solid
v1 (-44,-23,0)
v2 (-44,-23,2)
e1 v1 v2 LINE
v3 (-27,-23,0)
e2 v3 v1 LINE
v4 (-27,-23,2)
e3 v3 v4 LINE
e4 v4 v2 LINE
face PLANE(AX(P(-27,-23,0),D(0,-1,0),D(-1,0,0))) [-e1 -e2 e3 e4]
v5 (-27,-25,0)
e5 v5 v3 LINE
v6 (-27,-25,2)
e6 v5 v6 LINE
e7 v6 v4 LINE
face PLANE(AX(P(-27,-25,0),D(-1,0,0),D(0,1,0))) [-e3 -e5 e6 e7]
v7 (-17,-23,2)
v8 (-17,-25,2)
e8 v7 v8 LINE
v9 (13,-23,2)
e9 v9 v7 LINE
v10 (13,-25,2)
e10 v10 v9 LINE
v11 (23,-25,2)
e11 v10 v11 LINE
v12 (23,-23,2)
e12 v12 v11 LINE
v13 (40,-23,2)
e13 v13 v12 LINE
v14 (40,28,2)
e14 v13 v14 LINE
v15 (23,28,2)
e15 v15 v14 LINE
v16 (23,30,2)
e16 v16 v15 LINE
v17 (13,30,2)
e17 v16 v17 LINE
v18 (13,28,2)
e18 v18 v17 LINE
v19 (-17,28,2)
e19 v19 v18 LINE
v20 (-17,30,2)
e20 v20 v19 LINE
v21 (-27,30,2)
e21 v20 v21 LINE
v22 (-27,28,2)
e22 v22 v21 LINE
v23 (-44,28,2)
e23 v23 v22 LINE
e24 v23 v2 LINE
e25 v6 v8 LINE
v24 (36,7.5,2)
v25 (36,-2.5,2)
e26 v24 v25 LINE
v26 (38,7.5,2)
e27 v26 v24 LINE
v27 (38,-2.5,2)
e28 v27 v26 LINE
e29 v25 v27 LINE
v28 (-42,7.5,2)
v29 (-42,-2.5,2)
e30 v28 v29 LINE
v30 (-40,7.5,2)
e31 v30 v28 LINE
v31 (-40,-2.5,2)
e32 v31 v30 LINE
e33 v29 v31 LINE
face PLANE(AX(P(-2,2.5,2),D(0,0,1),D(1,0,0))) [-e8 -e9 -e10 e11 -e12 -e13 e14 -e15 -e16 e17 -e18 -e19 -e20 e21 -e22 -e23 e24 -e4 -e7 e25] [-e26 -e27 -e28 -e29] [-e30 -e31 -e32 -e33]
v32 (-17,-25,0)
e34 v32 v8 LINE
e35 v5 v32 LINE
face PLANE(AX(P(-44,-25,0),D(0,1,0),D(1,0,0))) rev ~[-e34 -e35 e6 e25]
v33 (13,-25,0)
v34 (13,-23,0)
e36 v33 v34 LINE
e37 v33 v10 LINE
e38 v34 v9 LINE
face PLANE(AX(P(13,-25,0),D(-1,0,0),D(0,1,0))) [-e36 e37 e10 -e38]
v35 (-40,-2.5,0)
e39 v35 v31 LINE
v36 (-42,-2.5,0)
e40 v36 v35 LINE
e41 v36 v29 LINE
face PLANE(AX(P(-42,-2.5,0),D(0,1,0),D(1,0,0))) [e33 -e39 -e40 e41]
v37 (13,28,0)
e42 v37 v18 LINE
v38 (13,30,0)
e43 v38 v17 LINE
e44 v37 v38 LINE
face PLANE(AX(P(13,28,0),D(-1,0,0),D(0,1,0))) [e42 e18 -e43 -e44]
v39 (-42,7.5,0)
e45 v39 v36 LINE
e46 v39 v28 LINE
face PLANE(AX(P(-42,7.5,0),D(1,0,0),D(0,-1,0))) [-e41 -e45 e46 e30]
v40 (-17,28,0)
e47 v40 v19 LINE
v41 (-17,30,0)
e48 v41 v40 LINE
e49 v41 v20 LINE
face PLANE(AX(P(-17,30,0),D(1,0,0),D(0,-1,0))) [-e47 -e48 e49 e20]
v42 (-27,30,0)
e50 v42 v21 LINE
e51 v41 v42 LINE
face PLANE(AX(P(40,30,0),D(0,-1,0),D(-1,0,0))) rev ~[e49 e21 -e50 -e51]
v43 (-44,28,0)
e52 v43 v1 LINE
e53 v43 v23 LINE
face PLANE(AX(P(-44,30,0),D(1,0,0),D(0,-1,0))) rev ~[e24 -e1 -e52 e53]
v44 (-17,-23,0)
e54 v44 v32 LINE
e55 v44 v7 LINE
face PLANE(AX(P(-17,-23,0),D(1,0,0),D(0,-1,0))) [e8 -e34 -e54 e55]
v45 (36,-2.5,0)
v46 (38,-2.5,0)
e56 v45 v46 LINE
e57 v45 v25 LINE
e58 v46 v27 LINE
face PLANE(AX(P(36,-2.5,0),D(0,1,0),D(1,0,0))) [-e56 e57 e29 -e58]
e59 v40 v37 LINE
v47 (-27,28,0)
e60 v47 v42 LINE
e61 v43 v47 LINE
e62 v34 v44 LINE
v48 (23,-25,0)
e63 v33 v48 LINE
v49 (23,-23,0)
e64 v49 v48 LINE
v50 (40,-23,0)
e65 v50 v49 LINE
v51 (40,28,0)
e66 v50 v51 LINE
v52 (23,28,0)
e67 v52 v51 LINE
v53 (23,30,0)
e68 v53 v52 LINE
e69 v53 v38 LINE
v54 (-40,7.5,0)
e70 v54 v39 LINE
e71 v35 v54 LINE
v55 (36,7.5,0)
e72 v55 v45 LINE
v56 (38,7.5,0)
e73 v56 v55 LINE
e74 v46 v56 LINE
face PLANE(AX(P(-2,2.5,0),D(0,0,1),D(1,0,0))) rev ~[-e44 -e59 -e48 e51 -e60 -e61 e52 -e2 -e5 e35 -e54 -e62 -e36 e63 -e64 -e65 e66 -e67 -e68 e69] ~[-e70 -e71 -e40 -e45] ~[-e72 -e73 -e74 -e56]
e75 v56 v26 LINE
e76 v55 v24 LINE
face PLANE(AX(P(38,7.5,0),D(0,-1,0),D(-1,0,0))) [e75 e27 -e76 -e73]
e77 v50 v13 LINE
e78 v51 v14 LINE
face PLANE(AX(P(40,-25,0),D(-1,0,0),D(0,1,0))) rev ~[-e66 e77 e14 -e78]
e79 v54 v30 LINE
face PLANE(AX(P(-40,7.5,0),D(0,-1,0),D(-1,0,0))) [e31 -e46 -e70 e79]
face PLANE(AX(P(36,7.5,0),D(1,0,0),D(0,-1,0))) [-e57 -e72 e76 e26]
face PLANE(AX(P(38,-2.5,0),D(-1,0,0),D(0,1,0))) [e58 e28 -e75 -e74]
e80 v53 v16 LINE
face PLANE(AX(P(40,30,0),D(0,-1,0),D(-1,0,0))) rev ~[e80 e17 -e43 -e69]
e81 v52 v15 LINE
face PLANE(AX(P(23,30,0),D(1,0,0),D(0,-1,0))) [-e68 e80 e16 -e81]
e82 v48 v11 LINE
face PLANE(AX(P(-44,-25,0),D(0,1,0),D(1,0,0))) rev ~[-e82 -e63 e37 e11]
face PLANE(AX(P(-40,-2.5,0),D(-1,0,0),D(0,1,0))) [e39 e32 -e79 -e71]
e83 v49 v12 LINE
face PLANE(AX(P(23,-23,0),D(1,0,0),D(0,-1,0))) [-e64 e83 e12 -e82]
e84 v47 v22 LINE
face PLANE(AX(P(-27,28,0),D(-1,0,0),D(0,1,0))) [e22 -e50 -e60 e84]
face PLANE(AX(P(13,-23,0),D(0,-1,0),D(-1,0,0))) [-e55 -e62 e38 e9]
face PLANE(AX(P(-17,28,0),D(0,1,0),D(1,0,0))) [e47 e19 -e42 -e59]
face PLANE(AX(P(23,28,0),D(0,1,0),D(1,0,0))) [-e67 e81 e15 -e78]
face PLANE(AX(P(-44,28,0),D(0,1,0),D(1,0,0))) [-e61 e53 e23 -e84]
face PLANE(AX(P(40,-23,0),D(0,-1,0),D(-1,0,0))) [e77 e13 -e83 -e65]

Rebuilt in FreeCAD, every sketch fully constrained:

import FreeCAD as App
import Part
import Sketcher
Q = App.Units.Quantity

doc = App.newDocument("Part")
body = doc.addObject("PartDesign::Body", "Body")

sketch1 = body.newObject("Sketcher::SketchObject", "Sketch")
sketch1.AttachmentSupport = (doc.getObject("XY_Plane"), [""])
sketch1.MapMode = "FlatFace"
sketch1.addGeometry(Part.LineSegment(App.Vector(-44, -25, 0), App.Vector(40, -25, 0)), False)
sketch1.addGeometry(Part.LineSegment(App.Vector(40, -25, 0), App.Vector(40, 30, 0)), False)
sketch1.addGeometry(Part.LineSegment(App.Vector(40, 30, 0), App.Vector(-44, 30, 0)), False)
sketch1.addGeometry(Part.LineSegment(App.Vector(-44, 30, 0), App.Vector(-44, -25, 0)), False)
sketch1.addConstraint(Sketcher.Constraint("Coincident", 0, 2, 1, 1))
sketch1.addConstraint(Sketcher.Constraint("Coincident", 1, 2, 2, 1))
sketch1.addConstraint(Sketcher.Constraint("Coincident", 2, 2, 3, 1))
sketch1.addConstraint(Sketcher.Constraint("Coincident", 3, 2, 0, 1))
sketch1.addConstraint(Sketcher.Constraint("Horizontal", 0))
sketch1.addConstraint(Sketcher.Constraint("Vertical", 1))
sketch1.addConstraint(Sketcher.Constraint("Horizontal", 2))
sketch1.addConstraint(Sketcher.Constraint("Vertical", 3))
sketch1.addConstraint(Sketcher.Constraint("DistanceX", 0, 1, 0, 2, Q("84 mm")))
sketch1.addConstraint(Sketcher.Constraint("DistanceY", 1, 1, 1, 2, Q("55 mm")))
sketch1.addConstraint(Sketcher.Constraint("DistanceX", -1, 1, 0, 2, Q("40 mm")))
sketch1.addConstraint(Sketcher.Constraint("DistanceY", 0, 2, -1, 1, Q("25 mm")))
pad1 = body.newObject("PartDesign::Pad", "Pad")
pad1.Profile = sketch1
pad1.Length = 2

sketch2 = body.newObject("Sketcher::SketchObject", "Sketch001")
sketch2.AttachmentSupport = (doc.getObject("XY_Plane"), [""])
sketch2.MapMode = "FlatFace"
sketch2.addGeometry(Part.LineSegment(App.Vector(-44, 30, 0), App.Vector(-44, 28, 0)), False)
sketch2.addGeometry(Part.LineSegment(App.Vector(-44, 28, 0), App.Vector(-27, 28, 0)), False)
sketch2.addGeometry(Part.LineSegment(App.Vector(-27, 28, 0), App.Vector(-27, 30, 0)), False)
sketch2.addGeometry(Part.LineSegment(App.Vector(-27, 30, 0), App.Vector(-44, 30, 0)), False)
sketch2.addConstraint(Sketcher.Constraint("Coincident", 0, 2, 1, 1))
sketch2.addConstraint(Sketcher.Constraint("Coincident", 1, 2, 2, 1))
sketch2.addConstraint(Sketcher.Constraint("Coincident", 2, 2, 3, 1))
sketch2.addConstraint(Sketcher.Constraint("Coincident", 3, 2, 0, 1))
sketch2.addConstraint(Sketcher.Constraint("Vertical", 0))
sketch2.addConstraint(Sketcher.Constraint("Horizontal", 1))
sketch2.addConstraint(Sketcher.Constraint("Vertical", 2))
sketch2.addConstraint(Sketcher.Constraint("Horizontal", 3))
sketch2.addConstraint(Sketcher.Constraint("DistanceX", 1, 1, 1, 2, Q("17 mm")))
sketch2.addConstraint(Sketcher.Constraint("DistanceY", 0, 2, 0, 1, Q("2 mm")))
sketch2.addConstraint(Sketcher.Constraint("DistanceX", 0, 2, -1, 1, Q("44 mm")))
sketch2.addConstraint(Sketcher.Constraint("DistanceY", -1, 1, 0, 2, Q("28 mm")))
pocket1 = body.newObject("PartDesign::Pocket", "Pocket")
pocket1.Profile = sketch2
pocket1.Length = 2
pocket1.Reversed = True

sketch3 = body.newObject("Sketcher::SketchObject", "Sketch002")
sketch3.AttachmentSupport = (doc.getObject("XY_Plane"), [""])
sketch3.MapMode = "FlatFace"
sketch3.addGeometry(Part.LineSegment(App.Vector(-17, 30, 0), App.Vector(-17, 28, 0)), False)
sketch3.addGeometry(Part.LineSegment(App.Vector(-17, 28, 0), App.Vector(13, 28, 0)), False)
sketch3.addGeometry(Part.LineSegment(App.Vector(13, 28, 0), App.Vector(13, 30, 0)), False)
sketch3.addGeometry(Part.LineSegment(App.Vector(13, 30, 0), App.Vector(-17, 30, 0)), False)
sketch3.addConstraint(Sketcher.Constraint("Coincident", 0, 2, 1, 1))
sketch3.addConstraint(Sketcher.Constraint("Coincident", 1, 2, 2, 1))
sketch3.addConstraint(Sketcher.Constraint("Coincident", 2, 2, 3, 1))
sketch3.addConstraint(Sketcher.Constraint("Coincident", 3, 2, 0, 1))
sketch3.addConstraint(Sketcher.Constraint("Vertical", 0))
sketch3.addConstraint(Sketcher.Constraint("Horizontal", 1))
sketch3.addConstraint(Sketcher.Constraint("Vertical", 2))
sketch3.addConstraint(Sketcher.Constraint("Horizontal", 3))
sketch3.addConstraint(Sketcher.Constraint("DistanceX", 1, 1, 1, 2, Q("30 mm")))
sketch3.addConstraint(Sketcher.Constraint("DistanceY", 0, 2, 0, 1, Q("2 mm")))
sketch3.addConstraint(Sketcher.Constraint("DistanceX", 0, 2, -1, 1, Q("17 mm")))
sketch3.addConstraint(Sketcher.Constraint("DistanceY", -1, 1, 0, 2, Q("28 mm")))
pocket2 = body.newObject("PartDesign::Pocket", "Pocket001")
pocket2.Profile = sketch3
pocket2.Length = 2
pocket2.Reversed = True

sketch4 = body.newObject("Sketcher::SketchObject", "Sketch003")
sketch4.AttachmentSupport = (doc.getObject("XY_Plane"), [""])
sketch4.MapMode = "FlatFace"
sketch4.addGeometry(Part.LineSegment(App.Vector(23, 30, 0), App.Vector(23, 28, 0)), False)
sketch4.addGeometry(Part.LineSegment(App.Vector(23, 28, 0), App.Vector(40, 28, 0)), False)
sketch4.addGeometry(Part.LineSegment(App.Vector(40, 28, 0), App.Vector(40, 30, 0)), False)
sketch4.addGeometry(Part.LineSegment(App.Vector(40, 30, 0), App.Vector(23, 30, 0)), False)
sketch4.addConstraint(Sketcher.Constraint("Coincident", 0, 2, 1, 1))
sketch4.addConstraint(Sketcher.Constraint("Coincident", 1, 2, 2, 1))
sketch4.addConstraint(Sketcher.Constraint("Coincident", 2, 2, 3, 1))
sketch4.addConstraint(Sketcher.Constraint("Coincident", 3, 2, 0, 1))
sketch4.addConstraint(Sketcher.Constraint("Vertical", 0))
sketch4.addConstraint(Sketcher.Constraint("Horizontal", 1))
sketch4.addConstraint(Sketcher.Constraint("Vertical", 2))
sketch4.addConstraint(Sketcher.Constraint("Horizontal", 3))
sketch4.addConstraint(Sketcher.Constraint("DistanceX", 1, 1, 1, 2, Q("17 mm")))
sketch4.addConstraint(Sketcher.Constraint("DistanceY", 0, 2, 0, 1, Q("2 mm")))
sketch4.addConstraint(Sketcher.Constraint("DistanceX", -1, 1, 0, 2, Q("23 mm")))
sketch4.addConstraint(Sketcher.Constraint("DistanceY", -1, 1, 0, 2, Q("28 mm")))
pocket3 = body.newObject("PartDesign::Pocket", "Pocket002")
pocket3.Profile = sketch4
pocket3.Length = 2
pocket3.Reversed = True

sketch5 = body.newObject("Sketcher::SketchObject", "Sketch004")
sketch5.AttachmentSupport = (doc.getObject("XY_Plane"), [""])
sketch5.MapMode = "FlatFace"
sketch5.addGeometry(Part.LineSegment(App.Vector(36, -2.5, 0), App.Vector(38, -2.5, 0)), False)
sketch5.addGeometry(Part.LineSegment(App.Vector(38, -2.5, 0), App.Vector(38, 7.5, 0)), False)
sketch5.addGeometry(Part.LineSegment(App.Vector(38, 7.5, 0), App.Vector(36, 7.5, 0)), False)
sketch5.addGeometry(Part.LineSegment(App.Vector(36, 7.5, 0), App.Vector(36, -2.5, 0)), False)
sketch5.addConstraint(Sketcher.Constraint("Coincident", 0, 2, 1, 1))
sketch5.addConstraint(Sketcher.Constraint("Coincident", 1, 2, 2, 1))
sketch5.addConstraint(Sketcher.Constraint("Coincident", 2, 2, 3, 1))
sketch5.addConstraint(Sketcher.Constraint("Coincident", 3, 2, 0, 1))
sketch5.addConstraint(Sketcher.Constraint("Horizontal", 0))
sketch5.addConstraint(Sketcher.Constraint("Vertical", 1))
sketch5.addConstraint(Sketcher.Constraint("Horizontal", 2))
sketch5.addConstraint(Sketcher.Constraint("Vertical", 3))
sketch5.addConstraint(Sketcher.Constraint("DistanceX", 0, 1, 0, 2, Q("2 mm")))
sketch5.addConstraint(Sketcher.Constraint("DistanceY", 1, 1, 1, 2, Q("10 mm")))
sketch5.addConstraint(Sketcher.Constraint("DistanceX", -1, 1, 0, 2, Q("38 mm")))
sketch5.addConstraint(Sketcher.Constraint("DistanceY", 0, 2, -1, 1, Q("2.5 mm")))
pocket4 = body.newObject("PartDesign::Pocket", "Pocket003")
pocket4.Profile = sketch5
pocket4.Length = 2
pocket4.Reversed = True

sketch6 = body.newObject("Sketcher::SketchObject", "Sketch005")
sketch6.AttachmentSupport = (doc.getObject("XY_Plane"), [""])
sketch6.MapMode = "FlatFace"
sketch6.addGeometry(Part.LineSegment(App.Vector(40, -25, 0), App.Vector(40, -23, 0)), False)
sketch6.addGeometry(Part.LineSegment(App.Vector(40, -23, 0), App.Vector(23, -23, 0)), False)
sketch6.addGeometry(Part.LineSegment(App.Vector(23, -23, 0), App.Vector(23, -25, 0)), False)
sketch6.addGeometry(Part.LineSegment(App.Vector(23, -25, 0), App.Vector(40, -25, 0)), False)
sketch6.addConstraint(Sketcher.Constraint("Coincident", 0, 2, 1, 1))
sketch6.addConstraint(Sketcher.Constraint("Coincident", 1, 2, 2, 1))
sketch6.addConstraint(Sketcher.Constraint("Coincident", 2, 2, 3, 1))
sketch6.addConstraint(Sketcher.Constraint("Coincident", 3, 2, 0, 1))
sketch6.addConstraint(Sketcher.Constraint("Vertical", 0))
sketch6.addConstraint(Sketcher.Constraint("Horizontal", 1))
sketch6.addConstraint(Sketcher.Constraint("Vertical", 2))
sketch6.addConstraint(Sketcher.Constraint("Horizontal", 3))
sketch6.addConstraint(Sketcher.Constraint("DistanceX", 1, 2, 1, 1, Q("17 mm")))
sketch6.addConstraint(Sketcher.Constraint("DistanceY", 0, 1, 0, 2, Q("2 mm")))
sketch6.addConstraint(Sketcher.Constraint("DistanceX", -1, 1, 0, 2, Q("40 mm")))
sketch6.addConstraint(Sketcher.Constraint("DistanceY", 0, 2, -1, 1, Q("23 mm")))
pocket5 = body.newObject("PartDesign::Pocket", "Pocket004")
pocket5.Profile = sketch6
pocket5.Length = 2
pocket5.Reversed = True

sketch7 = body.newObject("Sketcher::SketchObject", "Sketch006")
sketch7.AttachmentSupport = (doc.getObject("XY_Plane"), [""])
sketch7.MapMode = "FlatFace"
sketch7.addGeometry(Part.LineSegment(App.Vector(13, -25, 0), App.Vector(13, -23, 0)), False)
sketch7.addGeometry(Part.LineSegment(App.Vector(13, -23, 0), App.Vector(-17, -23, 0)), False)
sketch7.addGeometry(Part.LineSegment(App.Vector(-17, -23, 0), App.Vector(-17, -25, 0)), False)
sketch7.addGeometry(Part.LineSegment(App.Vector(-17, -25, 0), App.Vector(13, -25, 0)), False)
sketch7.addConstraint(Sketcher.Constraint("Coincident", 0, 2, 1, 1))
sketch7.addConstraint(Sketcher.Constraint("Coincident", 1, 2, 2, 1))
sketch7.addConstraint(Sketcher.Constraint("Coincident", 2, 2, 3, 1))
sketch7.addConstraint(Sketcher.Constraint("Coincident", 3, 2, 0, 1))
sketch7.addConstraint(Sketcher.Constraint("Vertical", 0))
sketch7.addConstraint(Sketcher.Constraint("Horizontal", 1))
sketch7.addConstraint(Sketcher.Constraint("Vertical", 2))
sketch7.addConstraint(Sketcher.Constraint("Horizontal", 3))
sketch7.addConstraint(Sketcher.Constraint("DistanceX", 1, 2, 1, 1, Q("30 mm")))
sketch7.addConstraint(Sketcher.Constraint("DistanceY", 0, 1, 0, 2, Q("2 mm")))
sketch7.addConstraint(Sketcher.Constraint("DistanceX", -1, 1, 0, 2, Q("13 mm")))
sketch7.addConstraint(Sketcher.Constraint("DistanceY", 0, 2, -1, 1, Q("23 mm")))
pocket6 = body.newObject("PartDesign::Pocket", "Pocket005")
pocket6.Profile = sketch7
pocket6.Length = 2
pocket6.Reversed = True

sketch8 = body.newObject("Sketcher::SketchObject", "Sketch007")
sketch8.AttachmentSupport = (doc.getObject("XY_Plane"), [""])
sketch8.MapMode = "FlatFace"
sketch8.addGeometry(Part.LineSegment(App.Vector(-27, -25, 0), App.Vector(-27, -23, 0)), False)
sketch8.addGeometry(Part.LineSegment(App.Vector(-27, -23, 0), App.Vector(-44, -23, 0)), False)
sketch8.addGeometry(Part.LineSegment(App.Vector(-44, -23, 0), App.Vector(-44, -25, 0)), False)
sketch8.addGeometry(Part.LineSegment(App.Vector(-44, -25, 0), App.Vector(-27, -25, 0)), False)
sketch8.addConstraint(Sketcher.Constraint("Coincident", 0, 2, 1, 1))
sketch8.addConstraint(Sketcher.Constraint("Coincident", 1, 2, 2, 1))
sketch8.addConstraint(Sketcher.Constraint("Coincident", 2, 2, 3, 1))
sketch8.addConstraint(Sketcher.Constraint("Coincident", 3, 2, 0, 1))
sketch8.addConstraint(Sketcher.Constraint("Vertical", 0))
sketch8.addConstraint(Sketcher.Constraint("Horizontal", 1))
sketch8.addConstraint(Sketcher.Constraint("Vertical", 2))
sketch8.addConstraint(Sketcher.Constraint("Horizontal", 3))
sketch8.addConstraint(Sketcher.Constraint("DistanceX", 1, 2, 1, 1, Q("17 mm")))
sketch8.addConstraint(Sketcher.Constraint("DistanceY", 0, 1, 0, 2, Q("2 mm")))
sketch8.addConstraint(Sketcher.Constraint("DistanceX", 0, 2, -1, 1, Q("27 mm")))
sketch8.addConstraint(Sketcher.Constraint("DistanceY", 0, 2, -1, 1, Q("23 mm")))
pocket7 = body.newObject("PartDesign::Pocket", "Pocket006")
pocket7.Profile = sketch8
pocket7.Length = 2
pocket7.Reversed = True

sketch9 = body.newObject("Sketcher::SketchObject", "Sketch008")
sketch9.AttachmentSupport = (doc.getObject("XY_Plane"), [""])
sketch9.MapMode = "FlatFace"
sketch9.addGeometry(Part.LineSegment(App.Vector(-42, -2.5, 0), App.Vector(-40, -2.5, 0)), False)
sketch9.addGeometry(Part.LineSegment(App.Vector(-40, -2.5, 0), App.Vector(-40, 7.5, 0)), False)
sketch9.addGeometry(Part.LineSegment(App.Vector(-40, 7.5, 0), App.Vector(-42, 7.5, 0)), False)
sketch9.addGeometry(Part.LineSegment(App.Vector(-42, 7.5, 0), App.Vector(-42, -2.5, 0)), False)
sketch9.addConstraint(Sketcher.Constraint("Coincident", 0, 2, 1, 1))
sketch9.addConstraint(Sketcher.Constraint("Coincident", 1, 2, 2, 1))
sketch9.addConstraint(Sketcher.Constraint("Coincident", 2, 2, 3, 1))
sketch9.addConstraint(Sketcher.Constraint("Coincident", 3, 2, 0, 1))
sketch9.addConstraint(Sketcher.Constraint("Horizontal", 0))
sketch9.addConstraint(Sketcher.Constraint("Vertical", 1))
sketch9.addConstraint(Sketcher.Constraint("Horizontal", 2))
sketch9.addConstraint(Sketcher.Constraint("Vertical", 3))
sketch9.addConstraint(Sketcher.Constraint("DistanceX", 0, 1, 0, 2, Q("2 mm")))
sketch9.addConstraint(Sketcher.Constraint("DistanceY", 1, 1, 1, 2, Q("10 mm")))
sketch9.addConstraint(Sketcher.Constraint("DistanceX", 0, 2, -1, 1, Q("40 mm")))
sketch9.addConstraint(Sketcher.Constraint("DistanceY", 0, 2, -1, 1, Q("2.5 mm")))
pocket8 = body.newObject("PartDesign::Pocket", "Pocket007")
pocket8.Profile = sketch9
pocket8.Length = 2
pocket8.Reversed = True

doc.recompute()
